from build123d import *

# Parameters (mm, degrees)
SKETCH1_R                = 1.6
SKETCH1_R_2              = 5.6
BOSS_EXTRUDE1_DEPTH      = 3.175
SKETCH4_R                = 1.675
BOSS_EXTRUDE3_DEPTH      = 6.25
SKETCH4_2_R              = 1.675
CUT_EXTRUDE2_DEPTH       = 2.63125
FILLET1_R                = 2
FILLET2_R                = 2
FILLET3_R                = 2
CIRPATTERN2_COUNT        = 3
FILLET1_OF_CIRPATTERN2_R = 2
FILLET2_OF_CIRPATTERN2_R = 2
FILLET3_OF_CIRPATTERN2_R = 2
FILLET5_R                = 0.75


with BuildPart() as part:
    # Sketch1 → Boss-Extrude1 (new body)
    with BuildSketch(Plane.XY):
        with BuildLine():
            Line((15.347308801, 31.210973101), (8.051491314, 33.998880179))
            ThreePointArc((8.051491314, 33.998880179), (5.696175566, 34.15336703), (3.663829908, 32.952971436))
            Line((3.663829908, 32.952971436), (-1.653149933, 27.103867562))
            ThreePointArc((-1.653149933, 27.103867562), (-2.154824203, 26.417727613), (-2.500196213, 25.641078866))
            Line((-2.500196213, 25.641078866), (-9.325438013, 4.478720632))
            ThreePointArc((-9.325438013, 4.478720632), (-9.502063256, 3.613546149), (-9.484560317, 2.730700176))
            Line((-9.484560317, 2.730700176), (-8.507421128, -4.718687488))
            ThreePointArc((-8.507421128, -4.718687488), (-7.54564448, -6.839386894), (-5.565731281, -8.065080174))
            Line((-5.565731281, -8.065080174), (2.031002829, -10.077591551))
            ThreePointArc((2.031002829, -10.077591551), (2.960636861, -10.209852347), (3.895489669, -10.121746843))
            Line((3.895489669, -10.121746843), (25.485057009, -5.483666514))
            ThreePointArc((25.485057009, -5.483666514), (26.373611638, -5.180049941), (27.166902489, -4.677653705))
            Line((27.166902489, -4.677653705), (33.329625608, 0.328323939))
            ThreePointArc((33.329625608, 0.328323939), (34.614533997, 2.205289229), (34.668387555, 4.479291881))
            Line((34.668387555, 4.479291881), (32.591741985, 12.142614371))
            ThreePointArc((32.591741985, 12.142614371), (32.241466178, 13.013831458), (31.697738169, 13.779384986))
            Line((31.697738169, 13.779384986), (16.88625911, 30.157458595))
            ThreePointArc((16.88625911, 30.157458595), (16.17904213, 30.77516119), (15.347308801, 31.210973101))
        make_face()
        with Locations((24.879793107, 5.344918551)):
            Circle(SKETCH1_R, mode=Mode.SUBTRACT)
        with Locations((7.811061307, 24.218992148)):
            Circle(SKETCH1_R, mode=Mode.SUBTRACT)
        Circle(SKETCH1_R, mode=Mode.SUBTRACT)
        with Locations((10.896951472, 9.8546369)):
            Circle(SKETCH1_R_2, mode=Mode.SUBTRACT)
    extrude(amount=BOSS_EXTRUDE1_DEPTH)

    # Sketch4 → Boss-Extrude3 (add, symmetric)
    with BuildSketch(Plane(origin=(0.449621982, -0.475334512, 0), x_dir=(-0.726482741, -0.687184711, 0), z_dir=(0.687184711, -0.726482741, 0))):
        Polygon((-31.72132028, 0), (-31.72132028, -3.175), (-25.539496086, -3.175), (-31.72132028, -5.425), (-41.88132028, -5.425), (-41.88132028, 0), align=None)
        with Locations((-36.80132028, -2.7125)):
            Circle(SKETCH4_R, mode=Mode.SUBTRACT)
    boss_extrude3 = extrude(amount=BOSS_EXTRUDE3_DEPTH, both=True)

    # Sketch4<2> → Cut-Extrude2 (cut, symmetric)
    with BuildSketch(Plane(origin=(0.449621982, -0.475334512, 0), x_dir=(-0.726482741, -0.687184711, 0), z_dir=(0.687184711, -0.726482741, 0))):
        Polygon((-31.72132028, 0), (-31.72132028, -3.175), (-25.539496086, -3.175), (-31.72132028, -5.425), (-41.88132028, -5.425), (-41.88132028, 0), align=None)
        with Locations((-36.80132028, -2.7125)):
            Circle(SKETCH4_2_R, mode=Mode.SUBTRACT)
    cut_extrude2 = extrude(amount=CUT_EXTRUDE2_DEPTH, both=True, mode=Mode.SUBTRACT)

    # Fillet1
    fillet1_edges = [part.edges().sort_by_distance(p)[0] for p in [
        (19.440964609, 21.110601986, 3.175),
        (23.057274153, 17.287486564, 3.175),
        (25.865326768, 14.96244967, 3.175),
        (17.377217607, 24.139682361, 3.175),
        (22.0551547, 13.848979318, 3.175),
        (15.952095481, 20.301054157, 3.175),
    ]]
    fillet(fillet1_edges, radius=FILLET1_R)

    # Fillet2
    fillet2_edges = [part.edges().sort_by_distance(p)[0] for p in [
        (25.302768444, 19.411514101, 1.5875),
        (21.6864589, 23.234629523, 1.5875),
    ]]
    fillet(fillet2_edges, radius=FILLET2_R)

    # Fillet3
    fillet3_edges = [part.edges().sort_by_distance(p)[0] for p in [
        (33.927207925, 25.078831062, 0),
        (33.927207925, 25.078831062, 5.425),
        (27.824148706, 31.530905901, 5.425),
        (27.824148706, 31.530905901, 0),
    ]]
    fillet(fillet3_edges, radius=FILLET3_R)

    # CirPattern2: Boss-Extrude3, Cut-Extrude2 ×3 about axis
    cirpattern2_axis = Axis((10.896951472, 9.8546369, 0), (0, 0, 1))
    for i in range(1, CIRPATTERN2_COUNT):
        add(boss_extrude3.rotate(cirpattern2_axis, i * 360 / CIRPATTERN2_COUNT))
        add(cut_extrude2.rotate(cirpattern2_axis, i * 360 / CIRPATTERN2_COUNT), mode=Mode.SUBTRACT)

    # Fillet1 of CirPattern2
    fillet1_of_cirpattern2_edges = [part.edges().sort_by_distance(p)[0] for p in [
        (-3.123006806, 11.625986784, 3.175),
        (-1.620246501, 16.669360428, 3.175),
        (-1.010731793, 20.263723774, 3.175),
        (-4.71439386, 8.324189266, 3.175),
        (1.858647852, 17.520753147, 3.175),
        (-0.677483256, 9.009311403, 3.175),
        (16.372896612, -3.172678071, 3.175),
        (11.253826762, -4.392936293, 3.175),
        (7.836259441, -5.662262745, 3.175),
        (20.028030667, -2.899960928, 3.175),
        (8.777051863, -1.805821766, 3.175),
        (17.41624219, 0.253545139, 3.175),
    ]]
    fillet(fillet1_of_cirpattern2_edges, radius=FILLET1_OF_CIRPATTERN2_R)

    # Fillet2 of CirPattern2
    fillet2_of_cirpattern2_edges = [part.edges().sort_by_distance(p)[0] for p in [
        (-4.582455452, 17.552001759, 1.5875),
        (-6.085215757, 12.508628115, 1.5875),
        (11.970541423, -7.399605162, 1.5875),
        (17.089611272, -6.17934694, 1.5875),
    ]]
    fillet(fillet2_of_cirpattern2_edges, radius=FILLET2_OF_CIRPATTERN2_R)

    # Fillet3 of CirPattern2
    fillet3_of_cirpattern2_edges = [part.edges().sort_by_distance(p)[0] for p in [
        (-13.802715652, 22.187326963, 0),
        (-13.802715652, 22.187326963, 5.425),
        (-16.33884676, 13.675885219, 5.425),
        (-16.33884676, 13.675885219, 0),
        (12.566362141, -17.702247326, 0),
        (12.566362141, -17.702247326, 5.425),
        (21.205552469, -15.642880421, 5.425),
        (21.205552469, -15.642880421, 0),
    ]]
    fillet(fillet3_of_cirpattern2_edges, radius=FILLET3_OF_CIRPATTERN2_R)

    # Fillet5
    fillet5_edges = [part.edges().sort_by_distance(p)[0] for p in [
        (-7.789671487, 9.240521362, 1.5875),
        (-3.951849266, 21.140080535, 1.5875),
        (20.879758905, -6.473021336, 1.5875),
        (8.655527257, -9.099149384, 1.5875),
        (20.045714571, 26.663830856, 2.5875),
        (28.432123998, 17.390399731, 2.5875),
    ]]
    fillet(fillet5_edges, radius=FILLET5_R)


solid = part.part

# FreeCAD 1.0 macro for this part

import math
import FreeCAD as App
import Part
import Sketcher

V = App.Vector
Q = App.Units.Quantity


def edges_at(feature, points):
    """Names of the edges that pass closest to the given points."""
    edges = feature.Shape.Edges
    near = lambda p: min(range(len(edges)), key=lambda i: edges[i].distToShape(Part.Vertex(*p))[0])
    return sorted({f"Edge{near(p) + 1}" for p in points})

doc = App.newDocument("Part")
params = doc.addObject("Spreadsheet::Sheet", "Params")
for row, (alias, value) in enumerate([
    ("sketch1_radius", "4 mm"),
    ("sketch1_radius2", "4 mm"),
    ("sketch1_radius3", "4 mm"),
    ("sketch1_radius4", "4 mm"),
    ("sketch1_radius5", "4 mm"),
    ("pad1_length", "3.175 mm"),
    ("sketch2_diameter", "3.35 mm"),
    ("sketch2_width", "10.16 mm"),
    ("pad2_length", "12.5 mm"),
    ("sketch3_diameter", "3.35 mm"),
    ("sketch3_width", "10.16 mm"),
    ("pocket1_length", "5.2625 mm"),
    ("fillet_radius", "2 mm"),
    ("fillet2_radius", "2 mm"),
    ("fillet3_radius", "2 mm"),
    ("fillet4_radius", "2 mm"),
    ("fillet5_radius", "2 mm"),
    ("fillet6_radius", "2 mm"),
    ("fillet7_radius", "0.75 mm"),
], start=1):
    params.set(f"A{row}", alias)
    params.set(f"B{row}", "=" + value)
    params.setAlias(f"B{row}", alias)

body = doc.addObject("PartDesign::Body", "Body")

sketch1 = body.newObject("Sketcher::SketchObject", "Sketch")
sketch1.AttachmentSupport = (doc.getObject("XY_Plane"), [""])
sketch1.MapMode = "FlatFace"
sketch1.addGeometry([
    Part.LineSegment(V(15.347309, 31.210973, 0), V(8.051491, 33.99888, 0)),
    Part.ArcOfCircle(Part.Circle(V(6.623688, 30.262388, 0), V(0, 0, 1), 4), math.radians(69.086943), math.radians(137.728388)),
    Part.LineSegment(V(3.66383, 32.952971, 0), V(-1.65315, 27.103868, 0)),
    Part.ArcOfCircle(Part.Circle(V(1.306708, 24.413284, 0), V(0, 0, 1), 4), math.radians(137.728388), math.radians(162.124554)),
    Part.LineSegment(V(-2.500196, 25.641079, 0), V(-9.325438, 4.478721, 0)),
    Part.ArcOfCircle(Part.Circle(V(-5.518534, 3.250925, 0), V(0, 0, 1), 4), math.radians(162.124554), math.radians(187.472847)),
    Part.LineSegment(V(-9.48456, 2.7307, 0), V(-8.507421, -4.718687, 0)),
    Part.ArcOfCircle(Part.Circle(V(-4.541395, -4.198462, 0), V(0, 0, 1), 4), math.radians(-172.527153), math.radians(-104.837835)),
    Part.LineSegment(V(-5.565731, -8.06508, 0), V(2.031003, -10.077592, 0)),
    Part.ArcOfCircle(Part.Circle(V(3.055339, -6.210974, 0), V(0, 0, 1), 4), math.radians(-104.837835), math.radians(-77.875446)),
    Part.LineSegment(V(3.89549, -10.121747, 0), V(25.485057, -5.483667, 0)),
    Part.ArcOfCircle(Part.Circle(V(24.644907, -1.572893, 0), V(0, 0, 1), 4), math.radians(-77.875446), math.radians(-50.913057)),
    Part.LineSegment(V(27.166902, -4.677654, 0), V(33.329626, 0.328324, 0)),
    Part.ArcOfCircle(Part.Circle(V(30.80763, 3.433084, 0), V(0, 0, 1), 4), math.radians(-50.913057), math.radians(15.162165)),
    Part.LineSegment(V(34.668388, 4.479292, 0), V(32.591742, 12.142614, 0)),
    Part.ArcOfCircle(Part.Circle(V(28.730984, 11.096407, 0), V(0, 0, 1), 4), math.radians(15.162165), math.radians(42.124554)),
    Part.LineSegment(V(31.697738, 13.779385, 0), V(16.886259, 30.157459, 0)),
    Part.ArcOfCircle(Part.Circle(V(13.919505, 27.47448, 0), V(0, 0, 1), 4), math.radians(42.124554), math.radians(69.086943)),
    Part.Circle(V(0, 0, 0), V(0, 0, 1), 1.6),
    Part.Circle(V(10.896951, 9.854637, 0), V(0, 0, 1), 5.6),
    Part.Circle(V(24.879793, 5.344919, 0), V(0, 0, 1), 1.6),
    Part.Circle(V(7.811061, 24.218992, 0), V(0, 0, 1), 1.6),
], False)
sketch1.addConstraint([
    Sketcher.Constraint("Coincident", 0, 2, 1, 1),
    Sketcher.Constraint("Coincident", 1, 2, 2, 1),
    Sketcher.Constraint("Coincident", 2, 2, 3, 1),
    Sketcher.Constraint("Coincident", 3, 2, 4, 1),
    Sketcher.Constraint("Coincident", 4, 2, 5, 1),
    Sketcher.Constraint("Coincident", 5, 2, 6, 1),
    Sketcher.Constraint("Coincident", 6, 2, 7, 1),
    Sketcher.Constraint("Coincident", 7, 2, 8, 1),
    Sketcher.Constraint("Coincident", 8, 2, 9, 1),
    Sketcher.Constraint("Coincident", 9, 2, 10, 1),
    Sketcher.Constraint("Coincident", 10, 2, 11, 1),
    Sketcher.Constraint("Coincident", 11, 2, 12, 1),
    Sketcher.Constraint("Coincident", 12, 2, 13, 1),
    Sketcher.Constraint("Coincident", 13, 2, 14, 1),
    Sketcher.Constraint("Coincident", 14, 2, 15, 1),
    Sketcher.Constraint("Coincident", 15, 2, 16, 1),
    Sketcher.Constraint("Coincident", 16, 2, 17, 1),
    Sketcher.Constraint("Coincident", 17, 2, 0, 1),
    Sketcher.Constraint("Coincident", 18, 3, -1, 1),
    Sketcher.Constraint("Radius", 1, Q("4 mm")),
    Sketcher.Constraint("Radius", 3, Q("4 mm")),
    Sketcher.Constraint("Radius", 5, Q("4 mm")),
    Sketcher.Constraint("Radius", 7, Q("4 mm")),
    Sketcher.Constraint("Radius", 9, Q("4 mm")),
    Sketcher.Constraint("Radius", 11, Q("4 mm")),
    Sketcher.Constraint("Radius", 13, Q("4 mm")),
    Sketcher.Constraint("Radius", 15, Q("4 mm")),
    Sketcher.Constraint("Radius", 17, Q("4 mm")),
    Sketcher.Constraint("Diameter", 18, Q("3.2 mm")),
    Sketcher.Constraint("Diameter", 19, Q("11.2 mm")),
    Sketcher.Constraint("Diameter", 20, Q("3.2 mm")),
    Sketcher.Constraint("Diameter", 21, Q("3.2 mm")),
    Sketcher.Constraint("Distance", 6, Q("7.5132 mm")),
    Sketcher.Constraint("DistanceY", -1, 1, 5, 2, Q("2.7307 mm")),
    Sketcher.Constraint("DistanceY", 9, 3, 5, 3, Q("9.461899 mm")),
    Sketcher.Constraint("DistanceX", 7, 3, 11, 3, Q("29.186301 mm")),
    Sketcher.Constraint("DistanceX", 3, 3, 11, 3, Q("23.338199 mm")),
    Sketcher.Constraint("DistanceY", 13, 3, 3, 3, Q("20.980199 mm")),
    Sketcher.Constraint("DistanceY", 11, 3, 15, 3, Q("12.6693 mm")),
    Sketcher.Constraint("DistanceX", 17, 3, 11, 3, Q("10.725402 mm")),
    Sketcher.Constraint("DistanceY", 17, 3, 0, 2, Q("6.5244 mm")),
    Sketcher.Constraint("DistanceX", 5, 2, 9, 3, Q("12.5399 mm")),
    Sketcher.Constraint("DistanceY", 13, 3, 15, 2, Q("10.346301 mm")),
    Sketcher.Constraint("Distance", 8, Q("7.858789 mm")),
    Sketcher.Constraint("Distance", 12, Q("7.939708 mm")),
    Sketcher.Constraint("Distance", 14, Q("7.939708 mm")),
    Sketcher.Constraint("DistanceX", -1, 1, 9, 3, Q("3.055339 mm")),
    Sketcher.Constraint("DistanceX", -1, 1, 13, 3, Q("30.80763 mm")),
    Sketcher.Constraint("DistanceY", -1, 1, 17, 3, Q("27.47448 mm")),
    Sketcher.Constraint("DistanceX", -1, 1, 19, 3, Q("10.896951 mm")),
    Sketcher.Constraint("DistanceY", -1, 1, 20, 3, Q("5.344919 mm")),
    Sketcher.Constraint("DistanceX", -1, 1, 21, 3, Q("7.811061 mm")),
    Sketcher.Constraint("DistanceX", -1, 1, 0, 2, Q("8.051491 mm")),
    Sketcher.Constraint("DistanceX", -1, 1, 1, 2, Q("3.66383 mm")),
    Sketcher.Constraint("DistanceY", -1, 1, 1, 2, Q("32.952971 mm")),
    Sketcher.Constraint("DistanceX", 2, 2, -1, 1, Q("1.65315 mm")),
    Sketcher.Constraint("DistanceY", -1, 1, 3, 2, Q("25.641079 mm")),
    Sketcher.Constraint("DistanceX", 4, 2, -1, 1, Q("9.325438 mm")),
    Sketcher.Constraint("DistanceY", -1, 1, 4, 2, Q("4.478721 mm")),
    Sketcher.Constraint("DistanceX", 6, 2, -1, 1, Q("8.507421 mm")),
    Sketcher.Constraint("DistanceX", 7, 2, -1, 1, Q("5.565731 mm")),
    Sketcher.Constraint("DistanceY", 7, 2, -1, 1, Q("8.06508 mm")),
    Sketcher.Constraint("DistanceX", -1, 1, 9, 2, Q("3.89549 mm")),
    Sketcher.Constraint("DistanceY", -1, 1, 13, 2, Q("4.479292 mm")),
    Sketcher.Constraint("DistanceX", -1, 1, 14, 2, Q("32.591742 mm")),
    Sketcher.Constraint("DistanceX", -1, 1, 15, 2, Q("31.697738 mm")),
    Sketcher.Constraint("DistanceX", -1, 1, 16, 2, Q("16.886259 mm")),
    Sketcher.Constraint("DistanceX", -1, 1, 17, 2, Q("15.347309 mm")),
    Sketcher.Constraint("DistanceY", 5, 3, 3, 3, Q("21.162358 mm")),
    Sketcher.Constraint("DistanceY", 5, 3, 19, 3, Q("6.603711 mm")),
    Sketcher.Constraint("DistanceX", 20, 3, 15, 3, Q("3.851191 mm")),
    Sketcher.Constraint("DistanceY", 21, 3, 3, 3, Q("0.194292 mm")),
    Sketcher.Constraint("DistanceX", 11, 3, 10, 2, Q("0.84015 mm")),
    Sketcher.Constraint("DistanceY", 11, 2, 11, 3, Q("3.10476 mm")),
])
sketch1.setExpression("Constraints[19]", "Params.sketch1_radius")
sketch1.setExpression("Constraints[20]", "Params.sketch1_radius2")
sketch1.setExpression("Constraints[21]", "Params.sketch1_radius3")
sketch1.setExpression("Constraints[22]", "Params.sketch1_radius4")
sketch1.setExpression("Constraints[23]", "Params.sketch1_radius5")
pad1 = body.newObject("PartDesign::Pad", "Pad")
pad1.Profile = sketch1
pad1.setExpression("Length", "Params.pad1_length")

sketch2 = body.newObject("Sketcher::SketchObject", "Sketch001")
sketch2.Placement = App.Placement(V(0.449622, -0.475335, 0), App.Rotation(V(-0.726482741, -0.687184711, 0), V(0, 0, -1), V(0.687184711, -0.726482741, 0), "ZXY"))
sketch2.addGeometry([
    Part.LineSegment(V(-31.72132, -3.175, 0), V(-31.72132, 0, 0)),
    Part.LineSegment(V(-31.72132, 0, 0), V(-41.88132, 0, 0)),
    Part.LineSegment(V(-41.88132, 0, 0), V(-41.88132, -5.425, 0)),
    Part.LineSegment(V(-41.88132, -5.425, 0), V(-31.72132, -5.425, 0)),
    Part.LineSegment(V(-31.72132, -5.425, 0), V(-25.539496, -3.175, 0)),
    Part.LineSegment(V(-25.539496, -3.175, 0), V(-31.72132, -3.175, 0)),
    Part.Circle(V(-36.80132, -2.7125, 0), V(0, 0, 1), 1.675),
], False)
sketch2.addConstraint([
    Sketcher.Constraint("Coincident", 0, 2, 1, 1),
    Sketcher.Constraint("Coincident", 1, 2, 2, 1),
    Sketcher.Constraint("Coincident", 2, 2, 3, 1),
    Sketcher.Constraint("Coincident", 3, 2, 4, 1),
    Sketcher.Constraint("Coincident", 4, 2, 5, 1),
    Sketcher.Constraint("Coincident", 5, 2, 0, 1),
    Sketcher.Constraint("Vertical", 0),
    Sketcher.Constraint("Horizontal", 1),
    Sketcher.Constraint("Vertical", 2),
    Sketcher.Constraint("Horizontal", 3),
    Sketcher.Constraint("Horizontal", 5),
    Sketcher.Constraint("PointOnObject", 0, 2, -1),
    Sketcher.Constraint("Vertical", 0, 2, 3, 2),
    Sketcher.Constraint("Diameter", 6, Q("3.35 mm")),
    Sketcher.Constraint("Angle", 4, Q("20 deg")),
    Sketcher.Constraint("DistanceX", 1, 2, 1, 1, Q("10.16 mm")),
    Sketcher.Constraint("DistanceY", 0, 1, 0, 2, Q("3.175 mm")),
    Sketcher.Constraint("DistanceY", 2, 2, 2, 1, Q("5.425 mm")),
    Sketcher.Constraint("DistanceX", 6, 3, 0, 2, Q("5.08 mm")),
    Sketcher.Constraint("DistanceY", 6, 3, -1, 1, Q("2.7125 mm")),
    Sketcher.Constraint("DistanceX", 6, 3, -1, 1, Q("36.80132 mm")),
])
sketch2.setExpression("Constraints[13]", "Params.sketch2_diameter")
sketch2.setExpression("Constraints[15]", "Params.sketch2_width")
pad2 = body.newObject("PartDesign::Pad", "Pad001")
pad2.Profile = sketch2
pad2.setExpression("Length", "Params.pad2_length")
pad2.Midplane = True

sketch3 = body.newObject("Sketcher::SketchObject", "Sketch002")
sketch3.Placement = App.Placement(V(0.449622, -0.475335, 0), App.Rotation(V(-0.726482741, -0.687184711, 0), V(0, 0, -1), V(0.687184711, -0.726482741, 0), "ZXY"))
sketch3.addGeometry([
    Part.LineSegment(V(-31.72132, -3.175, 0), V(-31.72132, 0, 0)),
    Part.LineSegment(V(-31.72132, 0, 0), V(-41.88132, 0, 0)),
    Part.LineSegment(V(-41.88132, 0, 0), V(-41.88132, -5.425, 0)),
    Part.LineSegment(V(-41.88132, -5.425, 0), V(-31.72132, -5.425, 0)),
    Part.LineSegment(V(-31.72132, -5.425, 0), V(-25.539496, -3.175, 0)),
    Part.LineSegment(V(-25.539496, -3.175, 0), V(-31.72132, -3.175, 0)),
    Part.Circle(V(-36.80132, -2.7125, 0), V(0, 0, 1), 1.675),
], False)
sketch3.addConstraint([
    Sketcher.Constraint("Coincident", 0, 2, 1, 1),
    Sketcher.Constraint("Coincident", 1, 2, 2, 1),
    Sketcher.Constraint("Coincident", 2, 2, 3, 1),
    Sketcher.Constraint("Coincident", 3, 2, 4, 1),
    Sketcher.Constraint("Coincident", 4, 2, 5, 1),
    Sketcher.Constraint("Coincident", 5, 2, 0, 1),
    Sketcher.Constraint("Vertical", 0),
    Sketcher.Constraint("Horizontal", 1),
    Sketcher.Constraint("Vertical", 2),
    Sketcher.Constraint("Horizontal", 3),
    Sketcher.Constraint("Horizontal", 5),
    Sketcher.Constraint("PointOnObject", 0, 2, -1),
    Sketcher.Constraint("Vertical", 0, 2, 3, 2),
    Sketcher.Constraint("Diameter", 6, Q("3.35 mm")),
    Sketcher.Constraint("Angle", 4, Q("20 deg")),
    Sketcher.Constraint("DistanceX", 1, 2, 1, 1, Q("10.16 mm")),
    Sketcher.Constraint("DistanceY", 0, 1, 0, 2, Q("3.175 mm")),
    Sketcher.Constraint("DistanceY", 2, 2, 2, 1, Q("5.425 mm")),
    Sketcher.Constraint("DistanceX", 6, 3, 0, 2, Q("5.08 mm")),
    Sketcher.Constraint("DistanceY", 6, 3, -1, 1, Q("2.7125 mm")),
    Sketcher.Constraint("DistanceX", 6, 3, -1, 1, Q("36.80132 mm")),
])
sketch3.setExpression("Constraints[13]", "Params.sketch3_diameter")
sketch3.setExpression("Constraints[15]", "Params.sketch3_width")
pocket1 = body.newObject("PartDesign::Pocket", "Pocket")
pocket1.Profile = sketch3
pocket1.setExpression("Length", "Params.pocket1_length")
pocket1.Midplane = True
doc.recompute()

fillet = body.newObject("PartDesign::Fillet", "Fillet")
fillet.Base = (pocket1, edges_at(pocket1, [
    (19.441, 21.111, 3.175),
    (23.057, 17.287, 3.175),
    (25.865, 14.962, 3.175),
    (17.377, 24.14, 3.175),
    (22.055, 13.849, 3.175),
    (15.952, 20.301, 3.175),
]))
fillet.setExpression("Radius", "Params.fillet_radius")
doc.recompute()

fillet2 = body.newObject("PartDesign::Fillet", "Fillet001")
fillet2.Base = (fillet, edges_at(fillet, [(25.303, 19.412, 2.587), (21.686, 23.235, 2.587)]))
fillet2.setExpression("Radius", "Params.fillet2_radius")
doc.recompute()

fillet3 = body.newObject("PartDesign::Fillet", "Fillet002")
fillet3.Base = (fillet2, edges_at(fillet2, [
    (33.927, 25.079, 0),
    (33.927, 25.079, 5.425),
    (27.824, 31.531, 5.425),
    (27.824, 31.531, 0),
]))
fillet3.setExpression("Radius", "Params.fillet3_radius")
doc.recompute()

datumline = body.newObject("PartDesign::Line", "DatumLine")
datumline.Placement = App.Placement(V(10.896951, 9.854637, 0), App.Rotation(V(0, 0, 1), V(0, 0, 1)))
polarpattern = body.newObject("PartDesign::PolarPattern", "PolarPattern")
polarpattern.Originals = [pad2, pocket1]
polarpattern.Axis = (datumline, [""])
polarpattern.Angle = 360
polarpattern.Occurrences = 3
body.Tip = polarpattern
doc.recompute()

fillet4 = body.newObject("PartDesign::Fillet", "Fillet003")
fillet4.Base = (polarpattern, edges_at(polarpattern, [
    (-3.123, 11.626, 3.175),
    (-1.62, 16.669, 3.175),
    (-0.788, 20.197, 3.175),
    (-4.492, 8.258, 3.175),
    (1.859, 17.521, 3.175),
    (-0.677, 9.009, 3.175),
    (16.373, -3.173, 3.175),
    (11.254, -4.393, 3.175),
    (7.836, -5.662, 3.175),
    (20.028, -2.9, 3.175),
    (8.777, -1.806, 3.175),
    (17.416, 0.254, 3.175),
]))
fillet4.setExpression("Radius", "Params.fillet4_radius")
doc.recompute()

fillet5 = body.newObject("PartDesign::Fillet", "Fillet004")
fillet5.Base = (fillet4, edges_at(fillet4, [
    (-4.582, 17.552, 2.587),
    (-6.085, 12.509, 2.587),
    (11.971, -7.4, 2.587),
    (17.09, -6.179, 2.587),
]))
fillet5.setExpression("Radius", "Params.fillet5_radius")
doc.recompute()

fillet6 = body.newObject("PartDesign::Fillet", "Fillet005")
fillet6.Base = (fillet5, edges_at(fillet5, [
    (-13.803, 22.187, 0),
    (-13.803, 22.187, 5.425),
    (-16.339, 13.676, 5.425),
    (-16.339, 13.676, 0),
    (12.566, -17.702, 0),
    (12.566, -17.702, 5.425),
    (21.206, -15.643, 5.425),
    (21.206, -15.643, 0),
]))
fillet6.setExpression("Radius", "Params.fillet6_radius")
doc.recompute()

fillet7 = body.newObject("PartDesign::Fillet", "Fillet006")
fillet7.Base = (fillet6, edges_at(fillet6, [
    (-7.79, 9.241, 2.587),
    (-3.952, 21.14, 2.587),
    (20.88, -6.473, 2.587),
    (8.656, -9.099, 2.587),
    (20.046, 26.664, 2.587),
    (28.432, 17.39, 2.587),
]))
fillet7.setExpression("Radius", "Params.fillet7_radius")

doc.recompute()
